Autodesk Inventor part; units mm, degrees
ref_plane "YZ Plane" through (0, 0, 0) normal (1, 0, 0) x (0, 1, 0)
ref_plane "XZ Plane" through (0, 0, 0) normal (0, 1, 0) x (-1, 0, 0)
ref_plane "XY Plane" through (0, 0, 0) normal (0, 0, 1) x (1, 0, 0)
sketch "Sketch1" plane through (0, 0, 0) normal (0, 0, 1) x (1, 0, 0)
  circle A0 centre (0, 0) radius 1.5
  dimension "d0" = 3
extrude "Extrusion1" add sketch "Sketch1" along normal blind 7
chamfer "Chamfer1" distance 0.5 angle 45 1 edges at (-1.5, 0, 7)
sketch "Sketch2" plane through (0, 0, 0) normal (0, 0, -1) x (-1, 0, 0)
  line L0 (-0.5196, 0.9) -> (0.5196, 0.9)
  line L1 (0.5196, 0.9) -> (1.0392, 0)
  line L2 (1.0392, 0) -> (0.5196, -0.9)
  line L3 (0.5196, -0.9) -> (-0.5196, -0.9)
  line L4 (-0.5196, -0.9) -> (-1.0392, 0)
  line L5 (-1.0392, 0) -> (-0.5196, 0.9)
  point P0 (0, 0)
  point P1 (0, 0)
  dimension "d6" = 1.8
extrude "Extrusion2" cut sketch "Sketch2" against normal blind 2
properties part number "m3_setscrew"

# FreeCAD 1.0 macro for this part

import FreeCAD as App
import Part
import Sketcher
from FreeCAD import Vector
Q = App.Units.Quantity


def edges_at(feature, points):
    """Names of the edges that pass closest to the given points."""
    edges = feature.Shape.Edges
    near = lambda p: min(range(len(edges)), key=lambda i: edges[i].distToShape(Part.Vertex(*p))[0])
    return sorted({f"Edge{near(p) + 1}" for p in points})


def add_polygon(sketch, points):
    """Adds a closed chain of lines whose ends are joined by coincident constraints."""
    first, n = sketch.GeometryCount, len(points)
    for a, b in zip(points, points[1:] + points[:1]):
        sketch.addGeometry(Part.LineSegment(App.Vector(*a, 0), App.Vector(*b, 0)), False)
    for i in range(n):
        sketch.addConstraint(Sketcher.Constraint("Coincident", first + i, 2, first + (i + 1) % n, 1))

doc = App.newDocument("Part")
body = doc.addObject("PartDesign::Body", "Body")

sketch1 = doc.addObject("Sketcher::SketchObject", "Sketch")
body.addObject(sketch1)
sketch1.AttachmentSupport = (doc.XY_Plane, [""])
sketch1.MapMode = "FlatFace"
sketch1.addGeometry(Part.Circle(Vector(0, 0, 0), Vector(0, 0, 1), 1.5), False)
sketch1.addConstraint([
    Sketcher.Constraint("Coincident", 0, 3, -1, 1),
    Sketcher.Constraint("Diameter", 0, 3.0),
])
pad1 = doc.addObject("PartDesign::Pad", "Pad")
body.addObject(pad1)
pad1.Profile = sketch1
pad1.Length = 7
doc.recompute()

chamfer = doc.addObject("PartDesign::Chamfer", "Chamfer")
body.addObject(chamfer)
chamfer.Base = (pad1, edges_at(pad1, [(-1.5, 0, 7)]))
chamfer.Size = 0.5

sketch2 = doc.addObject("Sketcher::SketchObject", "Sketch001")
body.addObject(sketch2)
sketch2.AttachmentSupport = (doc.XY_Plane, [""])
sketch2.MapMode = "FlatFace"
add_polygon(sketch2, [(-0.5, 0.9), (0.5, 0.9), (1, 0), (0.5, -0.9), (-0.5, -0.9), (-1, 0)])
sketch2.addConstraint([
    Sketcher.Constraint("Horizontal", 0),
    Sketcher.Constraint("Horizontal", 3),
    Sketcher.Constraint("Symmetric", 0, 2, 3, 2, -1, 1),
    Sketcher.Constraint("Symmetric", 1, 2, 4, 2, -1, 1),
    Sketcher.Constraint("PointOnObject", 1, 2, -1),
    Sketcher.Constraint("Parallel", 2, 5),
    Sketcher.Constraint("Vertical", 0, 2, 2, 2),
    Sketcher.Constraint("DistanceY", 2, 2, 0, 2, 1.8),
    Sketcher.Constraint("Angle", 1, Q("-60.0007 deg")),
    Sketcher.Constraint("DistanceX", 0, 1, 0, 2, 1.0392),
])
pocket1 = doc.addObject("PartDesign::Pocket", "Pocket")
body.addObject(pocket1)
pocket1.Profile = sketch2
pocket1.Length = 2
pocket1.Reversed = True

doc.recompute()
